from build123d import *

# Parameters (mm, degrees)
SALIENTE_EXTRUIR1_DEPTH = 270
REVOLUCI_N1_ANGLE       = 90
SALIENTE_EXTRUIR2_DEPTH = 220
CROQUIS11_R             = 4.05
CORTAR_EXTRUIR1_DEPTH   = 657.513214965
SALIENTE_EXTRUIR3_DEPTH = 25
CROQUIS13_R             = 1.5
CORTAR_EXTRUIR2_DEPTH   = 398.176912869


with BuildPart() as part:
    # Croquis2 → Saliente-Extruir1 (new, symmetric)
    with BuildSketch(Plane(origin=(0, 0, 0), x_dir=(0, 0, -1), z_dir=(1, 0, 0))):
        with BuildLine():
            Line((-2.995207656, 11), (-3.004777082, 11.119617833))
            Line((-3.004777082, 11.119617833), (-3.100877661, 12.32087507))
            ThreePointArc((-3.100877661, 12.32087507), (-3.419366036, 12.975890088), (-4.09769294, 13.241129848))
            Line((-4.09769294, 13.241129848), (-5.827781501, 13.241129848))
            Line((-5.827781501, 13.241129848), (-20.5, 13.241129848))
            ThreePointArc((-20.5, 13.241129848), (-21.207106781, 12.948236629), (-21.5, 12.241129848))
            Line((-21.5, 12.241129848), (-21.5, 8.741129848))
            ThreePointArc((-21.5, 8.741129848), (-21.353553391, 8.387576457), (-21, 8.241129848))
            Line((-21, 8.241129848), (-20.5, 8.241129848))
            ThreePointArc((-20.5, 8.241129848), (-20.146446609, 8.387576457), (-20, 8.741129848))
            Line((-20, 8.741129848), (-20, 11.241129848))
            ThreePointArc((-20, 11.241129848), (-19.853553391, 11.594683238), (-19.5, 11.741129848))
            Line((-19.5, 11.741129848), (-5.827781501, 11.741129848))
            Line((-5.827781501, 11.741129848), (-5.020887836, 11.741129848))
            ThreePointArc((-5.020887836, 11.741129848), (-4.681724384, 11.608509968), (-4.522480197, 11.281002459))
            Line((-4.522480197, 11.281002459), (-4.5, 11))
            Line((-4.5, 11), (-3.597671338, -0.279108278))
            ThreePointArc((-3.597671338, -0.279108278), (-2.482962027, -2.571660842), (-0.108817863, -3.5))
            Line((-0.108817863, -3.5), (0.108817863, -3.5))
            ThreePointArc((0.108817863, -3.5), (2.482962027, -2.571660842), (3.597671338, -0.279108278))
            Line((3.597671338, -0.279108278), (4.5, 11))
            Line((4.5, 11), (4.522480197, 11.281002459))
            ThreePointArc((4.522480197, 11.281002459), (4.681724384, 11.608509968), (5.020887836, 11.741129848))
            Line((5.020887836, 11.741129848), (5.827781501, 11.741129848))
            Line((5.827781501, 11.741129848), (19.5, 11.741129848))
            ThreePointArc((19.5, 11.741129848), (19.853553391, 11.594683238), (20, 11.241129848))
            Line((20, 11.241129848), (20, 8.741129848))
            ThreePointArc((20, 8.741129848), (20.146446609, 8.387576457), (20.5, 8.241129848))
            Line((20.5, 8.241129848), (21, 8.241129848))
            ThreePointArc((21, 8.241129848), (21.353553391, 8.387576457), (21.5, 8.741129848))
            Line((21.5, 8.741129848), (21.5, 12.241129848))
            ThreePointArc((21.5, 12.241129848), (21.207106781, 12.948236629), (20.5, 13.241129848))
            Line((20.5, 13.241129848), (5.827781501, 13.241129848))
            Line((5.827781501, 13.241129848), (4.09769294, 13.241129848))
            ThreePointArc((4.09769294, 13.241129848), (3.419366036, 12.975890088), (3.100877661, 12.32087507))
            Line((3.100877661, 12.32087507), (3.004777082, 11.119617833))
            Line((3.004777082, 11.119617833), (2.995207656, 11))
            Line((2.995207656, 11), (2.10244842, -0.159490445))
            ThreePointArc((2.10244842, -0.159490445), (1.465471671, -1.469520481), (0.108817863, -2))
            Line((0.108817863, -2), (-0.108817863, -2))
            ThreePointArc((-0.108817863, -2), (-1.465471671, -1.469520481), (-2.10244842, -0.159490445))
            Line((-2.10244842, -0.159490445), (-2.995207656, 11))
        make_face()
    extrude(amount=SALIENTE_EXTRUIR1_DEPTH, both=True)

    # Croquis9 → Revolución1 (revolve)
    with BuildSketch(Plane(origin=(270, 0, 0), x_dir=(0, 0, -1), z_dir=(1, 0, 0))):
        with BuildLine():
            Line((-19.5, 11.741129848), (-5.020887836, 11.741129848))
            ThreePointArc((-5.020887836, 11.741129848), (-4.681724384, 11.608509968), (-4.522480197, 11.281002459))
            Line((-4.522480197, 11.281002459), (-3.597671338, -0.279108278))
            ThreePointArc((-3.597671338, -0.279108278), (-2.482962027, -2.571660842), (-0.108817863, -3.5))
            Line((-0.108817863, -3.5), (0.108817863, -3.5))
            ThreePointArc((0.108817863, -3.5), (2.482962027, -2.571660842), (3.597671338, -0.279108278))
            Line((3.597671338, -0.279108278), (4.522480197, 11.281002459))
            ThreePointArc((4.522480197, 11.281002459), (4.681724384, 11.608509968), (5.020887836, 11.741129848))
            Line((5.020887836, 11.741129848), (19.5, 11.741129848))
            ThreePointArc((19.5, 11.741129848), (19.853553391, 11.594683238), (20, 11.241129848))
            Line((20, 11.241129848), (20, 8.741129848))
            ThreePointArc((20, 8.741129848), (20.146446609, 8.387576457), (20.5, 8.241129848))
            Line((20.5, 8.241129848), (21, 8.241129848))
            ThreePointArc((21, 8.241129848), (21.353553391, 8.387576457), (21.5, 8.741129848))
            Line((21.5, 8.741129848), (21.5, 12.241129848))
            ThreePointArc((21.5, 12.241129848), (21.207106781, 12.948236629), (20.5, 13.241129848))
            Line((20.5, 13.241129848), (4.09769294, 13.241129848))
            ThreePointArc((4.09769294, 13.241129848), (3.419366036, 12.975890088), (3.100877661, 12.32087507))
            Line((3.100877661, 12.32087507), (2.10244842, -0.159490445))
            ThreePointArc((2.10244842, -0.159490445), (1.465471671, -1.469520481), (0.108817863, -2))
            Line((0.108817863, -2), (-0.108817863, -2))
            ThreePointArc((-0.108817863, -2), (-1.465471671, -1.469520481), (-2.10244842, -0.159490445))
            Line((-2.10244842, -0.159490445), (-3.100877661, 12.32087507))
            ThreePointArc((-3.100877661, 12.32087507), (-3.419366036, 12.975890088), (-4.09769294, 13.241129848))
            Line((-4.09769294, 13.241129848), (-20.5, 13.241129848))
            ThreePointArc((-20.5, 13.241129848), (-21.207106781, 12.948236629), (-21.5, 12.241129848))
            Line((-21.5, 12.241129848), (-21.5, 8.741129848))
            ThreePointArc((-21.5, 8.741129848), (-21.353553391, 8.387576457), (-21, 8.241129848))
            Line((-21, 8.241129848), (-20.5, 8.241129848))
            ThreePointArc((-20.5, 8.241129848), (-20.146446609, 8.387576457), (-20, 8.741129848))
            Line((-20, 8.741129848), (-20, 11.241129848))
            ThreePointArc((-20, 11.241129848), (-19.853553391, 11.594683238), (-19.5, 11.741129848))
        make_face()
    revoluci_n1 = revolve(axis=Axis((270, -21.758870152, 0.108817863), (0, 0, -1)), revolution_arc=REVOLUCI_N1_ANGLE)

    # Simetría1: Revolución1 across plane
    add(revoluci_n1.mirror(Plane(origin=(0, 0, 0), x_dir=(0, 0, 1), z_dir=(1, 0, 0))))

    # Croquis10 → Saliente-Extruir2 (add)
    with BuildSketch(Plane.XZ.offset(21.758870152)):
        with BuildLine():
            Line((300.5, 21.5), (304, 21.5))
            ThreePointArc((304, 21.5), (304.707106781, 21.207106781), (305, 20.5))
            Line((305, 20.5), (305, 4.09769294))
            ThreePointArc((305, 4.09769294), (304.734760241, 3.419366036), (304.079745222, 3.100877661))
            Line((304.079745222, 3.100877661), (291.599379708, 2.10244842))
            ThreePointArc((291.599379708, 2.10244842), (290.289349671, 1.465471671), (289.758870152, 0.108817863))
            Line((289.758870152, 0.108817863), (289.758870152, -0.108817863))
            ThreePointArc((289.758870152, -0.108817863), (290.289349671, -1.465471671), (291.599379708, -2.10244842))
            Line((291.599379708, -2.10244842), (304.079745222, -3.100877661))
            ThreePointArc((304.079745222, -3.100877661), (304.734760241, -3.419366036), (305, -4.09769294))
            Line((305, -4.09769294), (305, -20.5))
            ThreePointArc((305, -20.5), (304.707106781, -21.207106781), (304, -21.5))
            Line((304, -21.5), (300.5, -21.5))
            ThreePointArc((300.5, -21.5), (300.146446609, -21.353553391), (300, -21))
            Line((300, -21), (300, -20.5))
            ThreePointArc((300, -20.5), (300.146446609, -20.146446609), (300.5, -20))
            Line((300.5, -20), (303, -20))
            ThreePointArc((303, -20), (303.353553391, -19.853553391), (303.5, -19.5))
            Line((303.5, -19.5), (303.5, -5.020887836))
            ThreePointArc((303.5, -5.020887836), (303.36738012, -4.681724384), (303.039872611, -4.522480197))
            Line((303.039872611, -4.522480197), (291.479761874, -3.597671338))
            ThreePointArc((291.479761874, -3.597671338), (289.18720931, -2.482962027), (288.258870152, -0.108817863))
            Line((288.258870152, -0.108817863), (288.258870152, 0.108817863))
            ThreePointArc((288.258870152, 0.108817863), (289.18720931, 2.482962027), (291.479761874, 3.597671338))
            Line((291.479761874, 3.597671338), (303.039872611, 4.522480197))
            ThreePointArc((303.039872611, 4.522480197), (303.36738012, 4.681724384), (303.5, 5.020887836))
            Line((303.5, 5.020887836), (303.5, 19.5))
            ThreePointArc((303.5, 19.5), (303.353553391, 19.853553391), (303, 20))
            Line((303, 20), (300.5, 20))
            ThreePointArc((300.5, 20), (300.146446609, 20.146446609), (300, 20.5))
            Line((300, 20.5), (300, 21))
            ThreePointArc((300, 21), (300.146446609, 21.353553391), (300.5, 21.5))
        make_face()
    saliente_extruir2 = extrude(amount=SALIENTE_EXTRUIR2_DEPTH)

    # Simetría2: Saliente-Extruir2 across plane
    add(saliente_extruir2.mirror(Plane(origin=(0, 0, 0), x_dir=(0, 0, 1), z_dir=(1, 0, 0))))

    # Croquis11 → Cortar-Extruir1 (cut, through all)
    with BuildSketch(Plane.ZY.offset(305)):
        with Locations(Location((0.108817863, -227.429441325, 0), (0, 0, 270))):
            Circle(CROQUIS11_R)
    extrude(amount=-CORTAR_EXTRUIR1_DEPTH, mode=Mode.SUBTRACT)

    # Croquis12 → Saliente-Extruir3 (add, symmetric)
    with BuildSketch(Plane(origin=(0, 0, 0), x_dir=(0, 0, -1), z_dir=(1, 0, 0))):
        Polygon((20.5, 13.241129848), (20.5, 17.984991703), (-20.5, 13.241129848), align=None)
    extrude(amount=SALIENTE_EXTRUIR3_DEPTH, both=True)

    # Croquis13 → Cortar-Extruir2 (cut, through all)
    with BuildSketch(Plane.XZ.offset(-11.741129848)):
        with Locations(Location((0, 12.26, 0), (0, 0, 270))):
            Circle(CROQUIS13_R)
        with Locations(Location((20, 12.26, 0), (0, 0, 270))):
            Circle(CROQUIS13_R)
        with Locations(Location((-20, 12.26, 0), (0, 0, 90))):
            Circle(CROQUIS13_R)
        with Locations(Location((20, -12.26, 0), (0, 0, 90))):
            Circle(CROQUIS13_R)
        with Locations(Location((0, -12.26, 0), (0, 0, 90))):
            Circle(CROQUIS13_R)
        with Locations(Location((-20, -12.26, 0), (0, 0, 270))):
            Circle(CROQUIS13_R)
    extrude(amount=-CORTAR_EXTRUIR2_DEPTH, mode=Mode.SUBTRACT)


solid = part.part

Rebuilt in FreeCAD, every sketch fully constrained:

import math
import FreeCAD as App
import Part
import Sketcher
Q = App.Units.Quantity


def add_polygon(sketch, points):
    """Adds a closed chain of lines whose ends are joined by coincident constraints."""
    first, n = sketch.GeometryCount, len(points)
    for a, b in zip(points, points[1:] + points[:1]):
        sketch.addGeometry(Part.LineSegment(App.Vector(*a, 0), App.Vector(*b, 0)), False)
    for i in range(n):
        sketch.addConstraint(Sketcher.Constraint("Coincident", first + i, 2, first + (i + 1) % n, 1))

doc = App.newDocument("Part")
body = doc.addObject("PartDesign::Body", "Body")

# Sketch on YZ plane
sketch1 = doc.addObject("Sketcher::SketchObject", "Sketch")
body.addObject(sketch1)
sketch1.AttachmentSupport = (doc.YZ_Plane, [""])
sketch1.MapMode = "FlatFace"
sketch1.addGeometry(Part.LineSegment(App.Vector(11, 3, 0), App.Vector(11.12, 3, 0)), False)
sketch1.addGeometry(Part.LineSegment(App.Vector(11.12, 3, 0), App.Vector(12.32, 3.1, 0)), False)
sketch1.addGeometry(Part.ArcOfCircle(Part.Circle(App.Vector(12.24, 4.1, 0), App.Vector(0, 0, 1), 1), math.radians(-85), math.radians(0)), False)
sketch1.addGeometry(Part.LineSegment(App.Vector(13.24, 4.1, 0), App.Vector(13.24, 20.5, 0)), False)
sketch1.addGeometry(Part.ArcOfCircle(Part.Circle(App.Vector(12.24, 20.5, 0), App.Vector(0, 0, 1), 1), math.radians(0), math.radians(90)), False)
sketch1.addGeometry(Part.LineSegment(App.Vector(12.24, 21.5, 0), App.Vector(8.74, 21.5, 0)), False)
sketch1.addGeometry(Part.ArcOfCircle(Part.Circle(App.Vector(8.74, 21, 0), App.Vector(0, 0, 1), 0.5), math.radians(90), math.radians(180)), False)
sketch1.addGeometry(Part.LineSegment(App.Vector(8.24, 21, 0), App.Vector(8.24, 20.5, 0)), False)
sketch1.addGeometry(Part.ArcOfCircle(Part.Circle(App.Vector(8.74, 20.5, 0), App.Vector(0, 0, 1), 0.5), math.radians(180), math.radians(270)), False)
sketch1.addGeometry(Part.LineSegment(App.Vector(8.74, 20, 0), App.Vector(11.24, 20, 0)), False)
sketch1.addGeometry(Part.ArcOfCircle(Part.Circle(App.Vector(11.24, 19.5, 0), App.Vector(0, 0, 1), 0.5), math.radians(0), math.radians(90)), False)
sketch1.addGeometry(Part.LineSegment(App.Vector(11.74, 19.5, 0), App.Vector(11.74, 5.02, 0)), False)
sketch1.addGeometry(Part.ArcOfCircle(Part.Circle(App.Vector(11.24, 5.02, 0), App.Vector(0, 0, 1), 0.5), math.radians(-85), math.radians(0)), False)
sketch1.addGeometry(Part.LineSegment(App.Vector(11.28, 4.52, 0), App.Vector(11, 4.5, 0)), False)
sketch1.addGeometry(Part.LineSegment(App.Vector(11, 4.5, 0), App.Vector(-0.28, 3.6, 0)), False)
sketch1.addGeometry(Part.ArcOfCircle(Part.Circle(App.Vector(0, 0.11, 0), App.Vector(0, 0, 1), 3.5), math.radians(95), math.radians(180)), False)
sketch1.addGeometry(Part.LineSegment(App.Vector(-3.5, 0.11, 0), App.Vector(-3.5, -0.11, 0)), False)
sketch1.addGeometry(Part.ArcOfCircle(Part.Circle(App.Vector(0, -0.11, 0), App.Vector(0, 0, 1), 3.5), math.radians(-180), math.radians(-95)), False)
sketch1.addGeometry(Part.LineSegment(App.Vector(-0.28, -3.6, 0), App.Vector(11, -4.5, 0)), False)
sketch1.addGeometry(Part.LineSegment(App.Vector(11, -4.5, 0), App.Vector(11.28, -4.52, 0)), False)
sketch1.addGeometry(Part.ArcOfCircle(Part.Circle(App.Vector(11.24, -5.02, 0), App.Vector(0, 0, 1), 0.5), math.radians(0), math.radians(85)), False)
sketch1.addGeometry(Part.LineSegment(App.Vector(11.74, -5.02, 0), App.Vector(11.74, -19.5, 0)), False)
sketch1.addGeometry(Part.ArcOfCircle(Part.Circle(App.Vector(11.24, -19.5, 0), App.Vector(0, 0, 1), 0.5), math.radians(-90), math.radians(0)), False)
sketch1.addGeometry(Part.LineSegment(App.Vector(11.24, -20, 0), App.Vector(8.74, -20, 0)), False)
sketch1.addGeometry(Part.ArcOfCircle(Part.Circle(App.Vector(8.74, -20.5, 0), App.Vector(0, 0, 1), 0.5), math.radians(90), math.radians(180)), False)
sketch1.addGeometry(Part.LineSegment(App.Vector(8.24, -20.5, 0), App.Vector(8.24, -21, 0)), False)
sketch1.addGeometry(Part.ArcOfCircle(Part.Circle(App.Vector(8.74, -21, 0), App.Vector(0, 0, 1), 0.5), math.radians(180), math.radians(270)), False)
sketch1.addGeometry(Part.LineSegment(App.Vector(8.74, -21.5, 0), App.Vector(12.24, -21.5, 0)), False)
sketch1.addGeometry(Part.ArcOfCircle(Part.Circle(App.Vector(12.24, -20.5, 0), App.Vector(0, 0, 1), 1), math.radians(-90), math.radians(0)), False)
sketch1.addGeometry(Part.LineSegment(App.Vector(13.24, -20.5, 0), App.Vector(13.24, -4.1, 0)), False)
sketch1.addGeometry(Part.ArcOfCircle(Part.Circle(App.Vector(12.24, -4.1, 0), App.Vector(0, 0, 1), 1), math.radians(0), math.radians(85)), False)
sketch1.addGeometry(Part.LineSegment(App.Vector(12.32, -3.1, 0), App.Vector(11.12, -3, 0)), False)
sketch1.addGeometry(Part.LineSegment(App.Vector(11.12, -3, 0), App.Vector(11, -3, 0)), False)
sketch1.addGeometry(Part.LineSegment(App.Vector(11, -3, 0), App.Vector(-0.16, -2.1, 0)), False)
sketch1.addGeometry(Part.ArcOfCircle(Part.Circle(App.Vector(0, -0.11, 0), App.Vector(0, 0, 1), 2), math.radians(-180), math.radians(-95)), False)
sketch1.addGeometry(Part.LineSegment(App.Vector(-2, -0.11, 0), App.Vector(-2, 0.11, 0)), False)
sketch1.addGeometry(Part.ArcOfCircle(Part.Circle(App.Vector(0, 0.11, 0), App.Vector(0, 0, 1), 2), math.radians(95), math.radians(180)), False)
sketch1.addGeometry(Part.LineSegment(App.Vector(-0.16, 2.1, 0), App.Vector(11, 3, 0)), False)
sketch1.addConstraint(Sketcher.Constraint("Coincident", 0, 2, 1, 1))
sketch1.addConstraint(Sketcher.Constraint("Tangent", 1, 2, 2, 1))
sketch1.addConstraint(Sketcher.Constraint("Tangent", 2, 2, 3, 1))
sketch1.addConstraint(Sketcher.Constraint("Tangent", 3, 2, 4, 1))
sketch1.addConstraint(Sketcher.Constraint("Tangent", 4, 2, 5, 1))
sketch1.addConstraint(Sketcher.Constraint("Tangent", 5, 2, 6, 1))
sketch1.addConstraint(Sketcher.Constraint("Tangent", 6, 2, 7, 1))
sketch1.addConstraint(Sketcher.Constraint("Tangent", 7, 2, 8, 1))
sketch1.addConstraint(Sketcher.Constraint("Tangent", 8, 2, 9, 1))
sketch1.addConstraint(Sketcher.Constraint("Tangent", 9, 2, 10, 2))
sketch1.addConstraint(Sketcher.Constraint("Tangent", 10, 1, 11, 1))
sketch1.addConstraint(Sketcher.Constraint("Tangent", 11, 2, 12, 2))
sketch1.addConstraint(Sketcher.Constraint("Tangent", 12, 1, 13, 1))
sketch1.addConstraint(Sketcher.Constraint("Coincident", 13, 2, 14, 1))
sketch1.addConstraint(Sketcher.Constraint("Tangent", 14, 2, 15, 1))
sketch1.addConstraint(Sketcher.Constraint("Tangent", 15, 2, 16, 1))
sketch1.addConstraint(Sketcher.Constraint("Tangent", 16, 2, 17, 1))
sketch1.addConstraint(Sketcher.Constraint("Tangent", 17, 2, 18, 1))
sketch1.addConstraint(Sketcher.Constraint("Coincident", 18, 2, 19, 1))
sketch1.addConstraint(Sketcher.Constraint("Tangent", 19, 2, 20, 2))
sketch1.addConstraint(Sketcher.Constraint("Tangent", 20, 1, 21, 1))
sketch1.addConstraint(Sketcher.Constraint("Tangent", 21, 2, 22, 2))
sketch1.addConstraint(Sketcher.Constraint("Tangent", 22, 1, 23, 1))
sketch1.addConstraint(Sketcher.Constraint("Tangent", 23, 2, 24, 1))
sketch1.addConstraint(Sketcher.Constraint("Tangent", 24, 2, 25, 1))
sketch1.addConstraint(Sketcher.Constraint("Tangent", 25, 2, 26, 1))
sketch1.addConstraint(Sketcher.Constraint("Tangent", 26, 2, 27, 1))
sketch1.addConstraint(Sketcher.Constraint("Tangent", 27, 2, 28, 1))
sketch1.addConstraint(Sketcher.Constraint("Tangent", 28, 2, 29, 1))
sketch1.addConstraint(Sketcher.Constraint("Tangent", 29, 2, 30, 1))
sketch1.addConstraint(Sketcher.Constraint("Tangent", 30, 2, 31, 1))
sketch1.addConstraint(Sketcher.Constraint("Coincident", 31, 2, 32, 1))
sketch1.addConstraint(Sketcher.Constraint("Coincident", 32, 2, 33, 1))
sketch1.addConstraint(Sketcher.Constraint("Tangent", 33, 2, 34, 2))
sketch1.addConstraint(Sketcher.Constraint("Tangent", 34, 1, 35, 1))
sketch1.addConstraint(Sketcher.Constraint("Tangent", 35, 2, 36, 2))
sketch1.addConstraint(Sketcher.Constraint("Tangent", 36, 1, 37, 1))
sketch1.addConstraint(Sketcher.Constraint("Coincident", 37, 2, 0, 1))
sketch1.addConstraint(Sketcher.Constraint("Vertical", 3))
sketch1.addConstraint(Sketcher.Constraint("Horizontal", 5))
sketch1.addConstraint(Sketcher.Constraint("Vertical", 7))
sketch1.addConstraint(Sketcher.Constraint("Horizontal", 9))
sketch1.addConstraint(Sketcher.Constraint("Vertical", 11))
sketch1.addConstraint(Sketcher.Constraint("Vertical", 16))
sketch1.addConstraint(Sketcher.Constraint("Vertical", 21))
sketch1.addConstraint(Sketcher.Constraint("Horizontal", 23))
sketch1.addConstraint(Sketcher.Constraint("Vertical", 25))
sketch1.addConstraint(Sketcher.Constraint("Horizontal", 27))
sketch1.addConstraint(Sketcher.Constraint("Vertical", 29))
sketch1.addConstraint(Sketcher.Constraint("Vertical", 35))
sketch1.addConstraint(Sketcher.Constraint("Coincident", 34, 3, 17, 3))
sketch1.addConstraint(Sketcher.Constraint("Coincident", 36, 3, 15, 3))
sketch1.addConstraint(Sketcher.Constraint("Equal", 2, 4))
sketch1.addConstraint(Sketcher.Constraint("Equal", 6, 8))
sketch1.addConstraint(Sketcher.Constraint("Equal", 8, 10))
sketch1.addConstraint(Sketcher.Constraint("Equal", 10, 12))
sketch1.addConstraint(Sketcher.Constraint("Equal", 15, 17))
sketch1.addConstraint(Sketcher.Constraint("Equal", 12, 20))
sketch1.addConstraint(Sketcher.Constraint("Equal", 20, 22))
sketch1.addConstraint(Sketcher.Constraint("Equal", 22, 24))
sketch1.addConstraint(Sketcher.Constraint("Equal", 24, 26))
sketch1.addConstraint(Sketcher.Constraint("Equal", 4, 28))
sketch1.addConstraint(Sketcher.Constraint("Equal", 28, 30))
sketch1.addConstraint(Sketcher.Constraint("Symmetric", 15, 3, 17, 3, -1, 1))
sketch1.addConstraint(Sketcher.Constraint("Symmetric", 12, 3, 20, 3, -1))
sketch1.addConstraint(Sketcher.Constraint("Symmetric", 8, 3, 24, 3, -1))
sketch1.addConstraint(Sketcher.Constraint("Symmetric", 4, 3, 28, 3, -1))
sketch1.addConstraint(Sketcher.Constraint("Symmetric", 13, 2, 18, 2, -1))
sketch1.addConstraint(Sketcher.Constraint("Symmetric", 1, 2, 30, 2, -1))
sketch1.addConstraint(Sketcher.Constraint("Symmetric", 32, 2, 37, 2, -1))
sketch1.addConstraint(Sketcher.Constraint("Parallel", 0, 1))
sketch1.addConstraint(Sketcher.Constraint("Parallel", 1, 13))
sketch1.addConstraint(Sketcher.Constraint("Parallel", 13, 14))
sketch1.addConstraint(Sketcher.Constraint("Parallel", 32, 33))
sketch1.addConstraint(Sketcher.Constraint("Horizontal", 4, 3, 8, 3))
sketch1.addConstraint(Sketcher.Constraint("Vertical", 0, 2, 31, 2))
sketch1.addConstraint(Sketcher.Constraint("Vertical", 18, 2, 32, 2))
sketch1.addConstraint(Sketcher.Constraint("Radius", 2, 1.0))
sketch1.addConstraint(Sketcher.Constraint("Radius", 34, 2.0))
sketch1.addConstraint(Sketcher.Constraint("Radius", 6, 0.5))
sketch1.addConstraint(Sketcher.Constraint("Radius", 15, 3.5))
sketch1.addConstraint(Sketcher.Constraint("DistanceX", 5, 2, 5, 1, 3.5))
sketch1.addConstraint(Sketcher.Constraint("DistanceX", 9, 1, 9, 2, 2.5))
sketch1.addConstraint(Sketcher.Constraint("DistanceY", -1, 1, 6, 3, 21.0))
sketch1.addConstraint(Sketcher.Constraint("DistanceX", -1, 1, 13, 2, 11.0))
sketch1.addConstraint(Sketcher.Constraint("DistanceY", -1, 1, 13, 2, 4.5))
sketch1.addConstraint(Sketcher.Constraint("Distance", 0, 0.12))
sketch1.addConstraint(Sketcher.Constraint("Distance", 13, 0.2819))
sketch1.addConstraint(Sketcher.Constraint("DistanceY", 0, 2, 1, 2, 0.096101))
pad1 = doc.addObject("PartDesign::Pad", "Pad")
body.addObject(pad1)
pad1.Profile = sketch1
pad1.Length = 540
pad1.Midplane = True

# Sketch on YZ plane
sketch2 = doc.addObject("Sketcher::SketchObject", "Sketch001")
body.addObject(sketch2)
sketch2.AttachmentSupport = (doc.YZ_Plane, [""])
sketch2.MapMode = "FlatFace"
sketch2.AttachmentOffset = App.Placement(App.Vector(0, 0, 270), App.Rotation())
sketch2.addGeometry(Part.LineSegment(App.Vector(11.74, 19.5, 0), App.Vector(11.74, 5.02, 0)), False)
sketch2.addGeometry(Part.ArcOfCircle(Part.Circle(App.Vector(11.24, 5.02, 0), App.Vector(0, 0, 1), 0.5), math.radians(-85), math.radians(0)), False)
sketch2.addGeometry(Part.LineSegment(App.Vector(11.28, 4.52, 0), App.Vector(-0.28, 3.6, 0)), False)
sketch2.addGeometry(Part.ArcOfCircle(Part.Circle(App.Vector(0, 0.11, 0), App.Vector(0, 0, 1), 3.5), math.radians(95), math.radians(180)), False)
sketch2.addGeometry(Part.LineSegment(App.Vector(-3.5, 0.11, 0), App.Vector(-3.5, -0.11, 0)), False)
sketch2.addGeometry(Part.ArcOfCircle(Part.Circle(App.Vector(0, -0.11, 0), App.Vector(0, 0, 1), 3.5), math.radians(-180), math.radians(-95)), False)
sketch2.addGeometry(Part.LineSegment(App.Vector(-0.28, -3.6, 0), App.Vector(11.28, -4.52, 0)), False)
sketch2.addGeometry(Part.ArcOfCircle(Part.Circle(App.Vector(11.24, -5.02, 0), App.Vector(0, 0, 1), 0.5), math.radians(0), math.radians(85)), False)
sketch2.addGeometry(Part.LineSegment(App.Vector(11.74, -5.02, 0), App.Vector(11.74, -19.5, 0)), False)
sketch2.addGeometry(Part.ArcOfCircle(Part.Circle(App.Vector(11.24, -19.5, 0), App.Vector(0, 0, 1), 0.5), math.radians(-90), math.radians(0)), False)
sketch2.addGeometry(Part.LineSegment(App.Vector(11.24, -20, 0), App.Vector(8.74, -20, 0)), False)
sketch2.addGeometry(Part.ArcOfCircle(Part.Circle(App.Vector(8.74, -20.5, 0), App.Vector(0, 0, 1), 0.5), math.radians(90), math.radians(180)), False)
sketch2.addGeometry(Part.LineSegment(App.Vector(8.24, -20.5, 0), App.Vector(8.24, -21, 0)), False)
sketch2.addGeometry(Part.ArcOfCircle(Part.Circle(App.Vector(8.74, -21, 0), App.Vector(0, 0, 1), 0.5), math.radians(180), math.radians(270)), False)
sketch2.addGeometry(Part.LineSegment(App.Vector(8.74, -21.5, 0), App.Vector(12.24, -21.5, 0)), False)
sketch2.addGeometry(Part.ArcOfCircle(Part.Circle(App.Vector(12.24, -20.5, 0), App.Vector(0, 0, 1), 1), math.radians(-90), math.radians(0)), False)
sketch2.addGeometry(Part.LineSegment(App.Vector(13.24, -20.5, 0), App.Vector(13.24, -4.1, 0)), False)
sketch2.addGeometry(Part.ArcOfCircle(Part.Circle(App.Vector(12.24, -4.1, 0), App.Vector(0, 0, 1), 1), math.radians(0), math.radians(85)), False)
sketch2.addGeometry(Part.LineSegment(App.Vector(12.32, -3.1, 0), App.Vector(-0.16, -2.1, 0)), False)
sketch2.addGeometry(Part.ArcOfCircle(Part.Circle(App.Vector(0, -0.11, 0), App.Vector(0, 0, 1), 2), math.radians(-180), math.radians(-95)), False)
sketch2.addGeometry(Part.LineSegment(App.Vector(-2, -0.11, 0), App.Vector(-2, 0.11, 0)), False)
sketch2.addGeometry(Part.ArcOfCircle(Part.Circle(App.Vector(0, 0.11, 0), App.Vector(0, 0, 1), 2), math.radians(95), math.radians(180)), False)
sketch2.addGeometry(Part.LineSegment(App.Vector(-0.16, 2.1, 0), App.Vector(12.32, 3.1, 0)), False)
sketch2.addGeometry(Part.ArcOfCircle(Part.Circle(App.Vector(12.24, 4.1, 0), App.Vector(0, 0, 1), 1), math.radians(-85), math.radians(0)), False)
sketch2.addGeometry(Part.LineSegment(App.Vector(13.24, 4.1, 0), App.Vector(13.24, 20.5, 0)), False)
sketch2.addGeometry(Part.ArcOfCircle(Part.Circle(App.Vector(12.24, 20.5, 0), App.Vector(0, 0, 1), 1), math.radians(0), math.radians(90)), False)
sketch2.addGeometry(Part.LineSegment(App.Vector(12.24, 21.5, 0), App.Vector(8.74, 21.5, 0)), False)
sketch2.addGeometry(Part.ArcOfCircle(Part.Circle(App.Vector(8.74, 21, 0), App.Vector(0, 0, 1), 0.5), math.radians(90), math.radians(180)), False)
sketch2.addGeometry(Part.LineSegment(App.Vector(8.24, 21, 0), App.Vector(8.24, 20.5, 0)), False)
sketch2.addGeometry(Part.ArcOfCircle(Part.Circle(App.Vector(8.74, 20.5, 0), App.Vector(0, 0, 1), 0.5), math.radians(180), math.radians(270)), False)
sketch2.addGeometry(Part.LineSegment(App.Vector(8.74, 20, 0), App.Vector(11.24, 20, 0)), False)
sketch2.addGeometry(Part.ArcOfCircle(Part.Circle(App.Vector(11.24, 19.5, 0), App.Vector(0, 0, 1), 0.5), math.radians(0), math.radians(90)), False)
sketch2.addGeometry(Part.LineSegment(App.Vector(-21.76, 21.5, 0), App.Vector(-21.76, -21.5, 0)), True)  # axis
sketch2.addConstraint(Sketcher.Constraint("Tangent", 0, 2, 1, 2))
sketch2.addConstraint(Sketcher.Constraint("Tangent", 1, 1, 2, 1))
sketch2.addConstraint(Sketcher.Constraint("Tangent", 2, 2, 3, 1))
sketch2.addConstraint(Sketcher.Constraint("Tangent", 3, 2, 4, 1))
sketch2.addConstraint(Sketcher.Constraint("Tangent", 4, 2, 5, 1))
sketch2.addConstraint(Sketcher.Constraint("Tangent", 5, 2, 6, 1))
sketch2.addConstraint(Sketcher.Constraint("Tangent", 6, 2, 7, 2))
sketch2.addConstraint(Sketcher.Constraint("Tangent", 7, 1, 8, 1))
sketch2.addConstraint(Sketcher.Constraint("Tangent", 8, 2, 9, 2))
sketch2.addConstraint(Sketcher.Constraint("Tangent", 9, 1, 10, 1))
sketch2.addConstraint(Sketcher.Constraint("Tangent", 10, 2, 11, 1))
sketch2.addConstraint(Sketcher.Constraint("Tangent", 11, 2, 12, 1))
sketch2.addConstraint(Sketcher.Constraint("Tangent", 12, 2, 13, 1))
sketch2.addConstraint(Sketcher.Constraint("Tangent", 13, 2, 14, 1))
sketch2.addConstraint(Sketcher.Constraint("Tangent", 14, 2, 15, 1))
sketch2.addConstraint(Sketcher.Constraint("Tangent", 15, 2, 16, 1))
sketch2.addConstraint(Sketcher.Constraint("Tangent", 16, 2, 17, 1))
sketch2.addConstraint(Sketcher.Constraint("Tangent", 17, 2, 18, 1))
sketch2.addConstraint(Sketcher.Constraint("Tangent", 18, 2, 19, 2))
sketch2.addConstraint(Sketcher.Constraint("Tangent", 19, 1, 20, 1))
sketch2.addConstraint(Sketcher.Constraint("Tangent", 20, 2, 21, 2))
sketch2.addConstraint(Sketcher.Constraint("Tangent", 21, 1, 22, 1))
sketch2.addConstraint(Sketcher.Constraint("Tangent", 22, 2, 23, 1))
sketch2.addConstraint(Sketcher.Constraint("Tangent", 23, 2, 24, 1))
sketch2.addConstraint(Sketcher.Constraint("Tangent", 24, 2, 25, 1))
sketch2.addConstraint(Sketcher.Constraint("Tangent", 25, 2, 26, 1))
sketch2.addConstraint(Sketcher.Constraint("Tangent", 26, 2, 27, 1))
sketch2.addConstraint(Sketcher.Constraint("Tangent", 27, 2, 28, 1))
sketch2.addConstraint(Sketcher.Constraint("Tangent", 28, 2, 29, 1))
sketch2.addConstraint(Sketcher.Constraint("Tangent", 29, 2, 30, 1))
sketch2.addConstraint(Sketcher.Constraint("Tangent", 30, 2, 31, 2))
sketch2.addConstraint(Sketcher.Constraint("Tangent", 31, 1, 0, 1))
sketch2.addConstraint(Sketcher.Constraint("Vertical", 0))
sketch2.addConstraint(Sketcher.Constraint("Vertical", 4))
sketch2.addConstraint(Sketcher.Constraint("Vertical", 8))
sketch2.addConstraint(Sketcher.Constraint("Horizontal", 10))
sketch2.addConstraint(Sketcher.Constraint("Vertical", 12))
sketch2.addConstraint(Sketcher.Constraint("Horizontal", 14))
sketch2.addConstraint(Sketcher.Constraint("Vertical", 16))
sketch2.addConstraint(Sketcher.Constraint("Vertical", 20))
sketch2.addConstraint(Sketcher.Constraint("Vertical", 24))
sketch2.addConstraint(Sketcher.Constraint("Horizontal", 26))
sketch2.addConstraint(Sketcher.Constraint("Vertical", 28))
sketch2.addConstraint(Sketcher.Constraint("Horizontal", 30))
sketch2.addConstraint(Sketcher.Constraint("Vertical", 32))
sketch2.addConstraint(Sketcher.Constraint("Coincident", 19, 3, 5, 3))
sketch2.addConstraint(Sketcher.Constraint("Coincident", 21, 3, 3, 3))
sketch2.addConstraint(Sketcher.Constraint("Equal", 3, 5))
sketch2.addConstraint(Sketcher.Constraint("Equal", 1, 7))
sketch2.addConstraint(Sketcher.Constraint("Equal", 7, 9))
sketch2.addConstraint(Sketcher.Constraint("Equal", 9, 11))
sketch2.addConstraint(Sketcher.Constraint("Equal", 11, 13))
sketch2.addConstraint(Sketcher.Constraint("Equal", 15, 17))
sketch2.addConstraint(Sketcher.Constraint("Equal", 17, 23))
sketch2.addConstraint(Sketcher.Constraint("Equal", 23, 25))
sketch2.addConstraint(Sketcher.Constraint("Equal", 13, 27))
sketch2.addConstraint(Sketcher.Constraint("Equal", 27, 29))
sketch2.addConstraint(Sketcher.Constraint("Equal", 29, 31))
sketch2.addConstraint(Sketcher.Constraint("Symmetric", 3, 3, 5, 3, -1, 1))
sketch2.addConstraint(Sketcher.Constraint("Symmetric", 1, 3, 7, 3, -1))
sketch2.addConstraint(Sketcher.Constraint("Symmetric", 17, 3, 23, 3, -1))
sketch2.addConstraint(Sketcher.Constraint("Symmetric", 13, 3, 27, 3, -1))
sketch2.addConstraint(Sketcher.Constraint("Parallel", 6, 18))
sketch2.addConstraint(Sketcher.Constraint("Horizontal", 11, 3, 15, 3))
sketch2.addConstraint(Sketcher.Constraint("Horizontal", 25, 3, 29, 3))
sketch2.addConstraint(Sketcher.Constraint("Horizontal", 26, 2, 32, 1))
sketch2.addConstraint(Sketcher.Constraint("Horizontal", 14, 2, 32, 2))
sketch2.addConstraint(Sketcher.Constraint("Radius", 15, 1.0))
sketch2.addConstraint(Sketcher.Constraint("Radius", 19, 2.0))
sketch2.addConstraint(Sketcher.Constraint("Radius", 1, 0.5))
sketch2.addConstraint(Sketcher.Constraint("Radius", 3, 3.5))
sketch2.addConstraint(Sketcher.Constraint("DistanceY", 32, 2, 32, 1, 43.0))
sketch2.addConstraint(Sketcher.Constraint("DistanceX", 10, 2, 10, 1, 2.5))
sketch2.addConstraint(Sketcher.Constraint("DistanceX", 14, 1, 14, 2, 3.5))
sketch2.addConstraint(Sketcher.Constraint("Distance", 18, 12.520239))
sketch2.addConstraint(Sketcher.Constraint("DistanceY", 0, 2, 0, 1, 14.479112))
sketch2.addConstraint(Sketcher.Constraint("DistanceY", 4, 2, 4, 1, 0.217636))
sketch2.addConstraint(Sketcher.Constraint("DistanceX", 32, 1, -1, 1, 21.75887))
revolution = doc.addObject("PartDesign::Revolution", "Revolution")
body.addObject(revolution)
revolution.Profile = sketch2
revolution.ReferenceAxis = (sketch2, ["Axis0"])
revolution.Angle = 90
doc.recompute()

mirrored = doc.addObject("PartDesign::Mirrored", "Mirrored")
body.addObject(mirrored)
mirrored.Originals = [revolution]
mirrored.MirrorPlane = (doc.YZ_Plane, [""])
body.Tip = mirrored

# Sketch on XZ plane
sketch3 = doc.addObject("Sketcher::SketchObject", "Sketch002")
body.addObject(sketch3)
sketch3.AttachmentSupport = (doc.XZ_Plane, [""])
sketch3.MapMode = "FlatFace"
sketch3.AttachmentOffset = App.Placement(App.Vector(0, 0, 21.75887), App.Rotation())
sketch3.addGeometry(Part.LineSegment(App.Vector(304, 21.5, 0), App.Vector(300.5, 21.5, 0)), False)
sketch3.addGeometry(Part.ArcOfCircle(Part.Circle(App.Vector(300.5, 21, 0), App.Vector(0, 0, 1), 0.5), math.radians(90), math.radians(180)), False)
sketch3.addGeometry(Part.LineSegment(App.Vector(300, 21, 0), App.Vector(300, 20.5, 0)), False)
sketch3.addGeometry(Part.ArcOfCircle(Part.Circle(App.Vector(300.5, 20.5, 0), App.Vector(0, 0, 1), 0.5), math.radians(180), math.radians(270)), False)
sketch3.addGeometry(Part.LineSegment(App.Vector(300.5, 20, 0), App.Vector(303, 20, 0)), False)
sketch3.addGeometry(Part.ArcOfCircle(Part.Circle(App.Vector(303, 19.5, 0), App.Vector(0, 0, 1), 0.5), math.radians(0), math.radians(90)), False)
sketch3.addGeometry(Part.LineSegment(App.Vector(303.5, 19.5, 0), App.Vector(303.5, 5.02, 0)), False)
sketch3.addGeometry(Part.ArcOfCircle(Part.Circle(App.Vector(303, 5.02, 0), App.Vector(0, 0, 1), 0.5), math.radians(-85), math.radians(0)), False)
sketch3.addGeometry(Part.LineSegment(App.Vector(303.04, 4.52, 0), App.Vector(291.48, 3.6, 0)), False)
sketch3.addGeometry(Part.ArcOfCircle(Part.Circle(App.Vector(291.76, 0.11, 0), App.Vector(0, 0, 1), 3.5), math.radians(95), math.radians(180)), False)
sketch3.addGeometry(Part.LineSegment(App.Vector(288.26, 0.11, 0), App.Vector(288.26, -0.11, 0)), False)
sketch3.addGeometry(Part.ArcOfCircle(Part.Circle(App.Vector(291.76, -0.11, 0), App.Vector(0, 0, 1), 3.5), math.radians(-180), math.radians(-95)), False)
sketch3.addGeometry(Part.LineSegment(App.Vector(291.48, -3.6, 0), App.Vector(303.04, -4.52, 0)), False)
sketch3.addGeometry(Part.ArcOfCircle(Part.Circle(App.Vector(303, -5.02, 0), App.Vector(0, 0, 1), 0.5), math.radians(0), math.radians(85)), False)
sketch3.addGeometry(Part.LineSegment(App.Vector(303.5, -5.02, 0), App.Vector(303.5, -19.5, 0)), False)
sketch3.addGeometry(Part.ArcOfCircle(Part.Circle(App.Vector(303, -19.5, 0), App.Vector(0, 0, 1), 0.5), math.radians(-90), math.radians(0)), False)
sketch3.addGeometry(Part.LineSegment(App.Vector(303, -20, 0), App.Vector(300.5, -20, 0)), False)
sketch3.addGeometry(Part.ArcOfCircle(Part.Circle(App.Vector(300.5, -20.5, 0), App.Vector(0, 0, 1), 0.5), math.radians(90), math.radians(180)), False)
sketch3.addGeometry(Part.LineSegment(App.Vector(300, -20.5, 0), App.Vector(300, -21, 0)), False)
sketch3.addGeometry(Part.ArcOfCircle(Part.Circle(App.Vector(300.5, -21, 0), App.Vector(0, 0, 1), 0.5), math.radians(180), math.radians(270)), False)
sketch3.addGeometry(Part.LineSegment(App.Vector(300.5, -21.5, 0), App.Vector(304, -21.5, 0)), False)
sketch3.addGeometry(Part.ArcOfCircle(Part.Circle(App.Vector(304, -20.5, 0), App.Vector(0, 0, 1), 1), math.radians(-90), math.radians(0)), False)
sketch3.addGeometry(Part.LineSegment(App.Vector(305, -20.5, 0), App.Vector(305, -4.1, 0)), False)
sketch3.addGeometry(Part.ArcOfCircle(Part.Circle(App.Vector(304, -4.1, 0), App.Vector(0, 0, 1), 1), math.radians(0), math.radians(85)), False)
sketch3.addGeometry(Part.LineSegment(App.Vector(304.08, -3.1, 0), App.Vector(291.6, -2.1, 0)), False)
sketch3.addGeometry(Part.ArcOfCircle(Part.Circle(App.Vector(291.76, -0.11, 0), App.Vector(0, 0, 1), 2), math.radians(-180), math.radians(-95)), False)
sketch3.addGeometry(Part.LineSegment(App.Vector(289.76, -0.11, 0), App.Vector(289.76, 0.11, 0)), False)
sketch3.addGeometry(Part.ArcOfCircle(Part.Circle(App.Vector(291.76, 0.11, 0), App.Vector(0, 0, 1), 2), math.radians(95), math.radians(180)), False)
sketch3.addGeometry(Part.LineSegment(App.Vector(291.6, 2.1, 0), App.Vector(304.08, 3.1, 0)), False)
sketch3.addGeometry(Part.ArcOfCircle(Part.Circle(App.Vector(304, 4.1, 0), App.Vector(0, 0, 1), 1), math.radians(-85), math.radians(0)), False)
sketch3.addGeometry(Part.LineSegment(App.Vector(305, 4.1, 0), App.Vector(305, 20.5, 0)), False)
sketch3.addGeometry(Part.ArcOfCircle(Part.Circle(App.Vector(304, 20.5, 0), App.Vector(0, 0, 1), 1), math.radians(0), math.radians(90)), False)
sketch3.addConstraint(Sketcher.Constraint("Tangent", 0, 2, 1, 1))
sketch3.addConstraint(Sketcher.Constraint("Tangent", 1, 2, 2, 1))
sketch3.addConstraint(Sketcher.Constraint("Tangent", 2, 2, 3, 1))
sketch3.addConstraint(Sketcher.Constraint("Tangent", 3, 2, 4, 1))
sketch3.addConstraint(Sketcher.Constraint("Tangent", 4, 2, 5, 2))
sketch3.addConstraint(Sketcher.Constraint("Tangent", 5, 1, 6, 1))
sketch3.addConstraint(Sketcher.Constraint("Tangent", 6, 2, 7, 2))
sketch3.addConstraint(Sketcher.Constraint("Tangent", 7, 1, 8, 1))
sketch3.addConstraint(Sketcher.Constraint("Tangent", 8, 2, 9, 1))
sketch3.addConstraint(Sketcher.Constraint("Tangent", 9, 2, 10, 1))
sketch3.addConstraint(Sketcher.Constraint("Tangent", 10, 2, 11, 1))
sketch3.addConstraint(Sketcher.Constraint("Tangent", 11, 2, 12, 1))
sketch3.addConstraint(Sketcher.Constraint("Tangent", 12, 2, 13, 2))
sketch3.addConstraint(Sketcher.Constraint("Tangent", 13, 1, 14, 1))
sketch3.addConstraint(Sketcher.Constraint("Tangent", 14, 2, 15, 2))
sketch3.addConstraint(Sketcher.Constraint("Tangent", 15, 1, 16, 1))
sketch3.addConstraint(Sketcher.Constraint("Tangent", 16, 2, 17, 1))
sketch3.addConstraint(Sketcher.Constraint("Tangent", 17, 2, 18, 1))
sketch3.addConstraint(Sketcher.Constraint("Tangent", 18, 2, 19, 1))
sketch3.addConstraint(Sketcher.Constraint("Tangent", 19, 2, 20, 1))
sketch3.addConstraint(Sketcher.Constraint("Tangent", 20, 2, 21, 1))
sketch3.addConstraint(Sketcher.Constraint("Tangent", 21, 2, 22, 1))
sketch3.addConstraint(Sketcher.Constraint("Tangent", 22, 2, 23, 1))
sketch3.addConstraint(Sketcher.Constraint("Tangent", 23, 2, 24, 1))
sketch3.addConstraint(Sketcher.Constraint("Tangent", 24, 2, 25, 2))
sketch3.addConstraint(Sketcher.Constraint("Tangent", 25, 1, 26, 1))
sketch3.addConstraint(Sketcher.Constraint("Tangent", 26, 2, 27, 2))
sketch3.addConstraint(Sketcher.Constraint("Tangent", 27, 1, 28, 1))
sketch3.addConstraint(Sketcher.Constraint("Tangent", 28, 2, 29, 1))
sketch3.addConstraint(Sketcher.Constraint("Tangent", 29, 2, 30, 1))
sketch3.addConstraint(Sketcher.Constraint("Tangent", 30, 2, 31, 1))
sketch3.addConstraint(Sketcher.Constraint("Tangent", 31, 2, 0, 1))
sketch3.addConstraint(Sketcher.Constraint("Horizontal", 0))
sketch3.addConstraint(Sketcher.Constraint("Vertical", 2))
sketch3.addConstraint(Sketcher.Constraint("Horizontal", 4))
sketch3.addConstraint(Sketcher.Constraint("Vertical", 6))
sketch3.addConstraint(Sketcher.Constraint("Vertical", 10))
sketch3.addConstraint(Sketcher.Constraint("Vertical", 14))
sketch3.addConstraint(Sketcher.Constraint("Horizontal", 16))
sketch3.addConstraint(Sketcher.Constraint("Vertical", 18))
sketch3.addConstraint(Sketcher.Constraint("Horizontal", 20))
sketch3.addConstraint(Sketcher.Constraint("Vertical", 22))
sketch3.addConstraint(Sketcher.Constraint("Vertical", 26))
sketch3.addConstraint(Sketcher.Constraint("Vertical", 30))
sketch3.addConstraint(Sketcher.Constraint("Coincident", 25, 3, 11, 3))
sketch3.addConstraint(Sketcher.Constraint("Coincident", 27, 3, 9, 3))
sketch3.addConstraint(Sketcher.Constraint("Equal", 1, 3))
sketch3.addConstraint(Sketcher.Constraint("Equal", 3, 5))
sketch3.addConstraint(Sketcher.Constraint("Equal", 5, 7))
sketch3.addConstraint(Sketcher.Constraint("Equal", 9, 11))
sketch3.addConstraint(Sketcher.Constraint("Equal", 7, 13))
sketch3.addConstraint(Sketcher.Constraint("Equal", 13, 15))
sketch3.addConstraint(Sketcher.Constraint("Equal", 15, 17))
sketch3.addConstraint(Sketcher.Constraint("Equal", 17, 19))
sketch3.addConstraint(Sketcher.Constraint("Equal", 21, 23))
sketch3.addConstraint(Sketcher.Constraint("Equal", 23, 29))
sketch3.addConstraint(Sketcher.Constraint("Equal", 29, 31))
sketch3.addConstraint(Sketcher.Constraint("Symmetric", 7, 3, 13, 3, -1))
sketch3.addConstraint(Sketcher.Constraint("Symmetric", 3, 3, 17, 3, -1))
sketch3.addConstraint(Sketcher.Constraint("Symmetric", 23, 3, 29, 3, -1))
sketch3.addConstraint(Sketcher.Constraint("Parallel", 12, 24))
sketch3.addConstraint(Sketcher.Constraint("Parallel", 8, 28))
sketch3.addConstraint(Sketcher.Constraint("Horizontal", 17, 3, 21, 3))
sketch3.addConstraint(Sketcher.Constraint("Horizontal", 3, 3, 31, 3))
sketch3.addConstraint(Sketcher.Constraint("Radius", 21, 1.0))
sketch3.addConstraint(Sketcher.Constraint("Radius", 25, 2.0))
sketch3.addConstraint(Sketcher.Constraint("Radius", 1, 0.5))
sketch3.addConstraint(Sketcher.Constraint("Radius", 9, 3.5))
sketch3.addConstraint(Sketcher.Constraint("DistanceX", 0, 2, 0, 1, 3.5))
sketch3.addConstraint(Sketcher.Constraint("DistanceX", 4, 1, 4, 2, 2.5))
sketch3.addConstraint(Sketcher.Constraint("DistanceY", -1, 1, 1, 3, 21.0))
sketch3.addConstraint(Sketcher.Constraint("DistanceX", -1, 1, 5, 3, 303.0))
sketch3.addConstraint(Sketcher.Constraint("Distance", 24, 12.520239))
sketch3.addConstraint(Sketcher.Constraint("DistanceY", 6, 2, 6, 1, 14.479112))
sketch3.addConstraint(Sketcher.Constraint("DistanceY", 10, 2, 10, 1, 0.217636))
pad2 = doc.addObject("PartDesign::Pad", "Pad001")
body.addObject(pad2)
pad2.Profile = sketch3
pad2.Length = 220
doc.recompute()

mirrored2 = doc.addObject("PartDesign::Mirrored", "Mirrored001")
body.addObject(mirrored2)
mirrored2.Originals = [pad2]
mirrored2.MirrorPlane = (doc.YZ_Plane, [""])
body.Tip = mirrored2

# Sketch on YZ plane
sketch4 = doc.addObject("Sketcher::SketchObject", "Sketch003")
body.addObject(sketch4)
sketch4.AttachmentSupport = (doc.YZ_Plane, [""])
sketch4.MapMode = "FlatFace"
sketch4.AttachmentOffset = App.Placement(App.Vector(0, 0, -305), App.Rotation())
sketch4.addGeometry(Part.Circle(App.Vector(-227.4, 0.1, 0), App.Vector(0, 0, 1), 4), False)
sketch4.addConstraint(Sketcher.Constraint("Diameter", 0, 8.1))
sketch4.addConstraint(Sketcher.Constraint("DistanceX", 0, 3, -1, 1, 227.429441))
sketch4.addConstraint(Sketcher.Constraint("DistanceY", -1, 1, 0, 3, 0.108818))
pocket1 = doc.addObject("PartDesign::Pocket", "Pocket")
body.addObject(pocket1)
pocket1.Profile = sketch4
pocket1.Type = "ThroughAll"
pocket1.Reversed = True

# Sketch on YZ plane
sketch5 = doc.addObject("Sketcher::SketchObject", "Sketch004")
body.addObject(sketch5)
sketch5.AttachmentSupport = (doc.YZ_Plane, [""])
sketch5.MapMode = "FlatFace"
add_polygon(sketch5, [(13.2, -20.5), (18, -20.5), (13.2, 20.5)])  # lines 0-2
sketch5.addConstraint(Sketcher.Constraint("Horizontal", 0))
sketch5.addConstraint(Sketcher.Constraint("Vertical", 2))
sketch5.addConstraint(Sketcher.Constraint("DistanceY", 2, 2, 2, 1, 41.0))
sketch5.addConstraint(Sketcher.Constraint("Angle", 1, Q("96.6 deg")))
sketch5.addConstraint(Sketcher.Constraint("DistanceY", 0, 2, -1, 1, 20.5))
sketch5.addConstraint(Sketcher.Constraint("DistanceX", -1, 1, 0, 2, 17.984992))
pad3 = doc.addObject("PartDesign::Pad", "Pad002")
body.addObject(pad3)
pad3.Profile = sketch5
pad3.Length = 50
pad3.Midplane = True

# Sketch on XZ plane
sketch6 = doc.addObject("Sketcher::SketchObject", "Sketch005")
body.addObject(sketch6)
sketch6.AttachmentSupport = (doc.XZ_Plane, [""])
sketch6.MapMode = "FlatFace"
sketch6.AttachmentOffset = App.Placement(App.Vector(0, 0, -11.74113), App.Rotation())
sketch6.addGeometry(Part.Circle(App.Vector(0, 12.3, 0), App.Vector(0, 0, 1), 1.5), False)
sketch6.addGeometry(Part.Circle(App.Vector(20, 12.3, 0), App.Vector(0, 0, 1), 1.5), False)
sketch6.addGeometry(Part.Circle(App.Vector(-20, 12.3, 0), App.Vector(0, 0, 1), 1.5), False)
sketch6.addGeometry(Part.Circle(App.Vector(20, -12.3, 0), App.Vector(0, 0, 1), 1.5), False)
sketch6.addGeometry(Part.Circle(App.Vector(0, -12.3, 0), App.Vector(0, 0, 1), 1.5), False)
sketch6.addGeometry(Part.Circle(App.Vector(-20, -12.3, 0), App.Vector(0, 0, 1), 1.5), False)
sketch6.addConstraint(Sketcher.Constraint("Equal", 0, 1))
sketch6.addConstraint(Sketcher.Constraint("Equal", 1, 2))
sketch6.addConstraint(Sketcher.Constraint("Equal", 2, 3))
sketch6.addConstraint(Sketcher.Constraint("Equal", 3, 4))
sketch6.addConstraint(Sketcher.Constraint("Equal", 4, 5))
sketch6.addConstraint(Sketcher.Constraint("Symmetric", 2, 3, 3, 3, -1, 1))
sketch6.addConstraint(Sketcher.Constraint("Symmetric", 0, 3, 4, 3, -1, 1))
sketch6.addConstraint(Sketcher.Constraint("Symmetric", 1, 3, 5, 3, -1, 1))
sketch6.addConstraint(Sketcher.Constraint("Symmetric", 1, 3, 2, 3, -2))
sketch6.addConstraint(Sketcher.Constraint("PointOnObject", 0, 3, -2))
sketch6.addConstraint(Sketcher.Constraint("Horizontal", 0, 3, 1, 3))
sketch6.addConstraint(Sketcher.Constraint("Diameter", 0, 3.0))
sketch6.addConstraint(Sketcher.Constraint("DistanceX", -1, 1, 1, 3, 20.0))
sketch6.addConstraint(Sketcher.Constraint("DistanceY", -1, 1, 0, 3, 12.26))
pocket2 = doc.addObject("PartDesign::Pocket", "Pocket001")
body.addObject(pocket2)
pocket2.Profile = sketch6
pocket2.Type = "ThroughAll"

doc.recompute()
